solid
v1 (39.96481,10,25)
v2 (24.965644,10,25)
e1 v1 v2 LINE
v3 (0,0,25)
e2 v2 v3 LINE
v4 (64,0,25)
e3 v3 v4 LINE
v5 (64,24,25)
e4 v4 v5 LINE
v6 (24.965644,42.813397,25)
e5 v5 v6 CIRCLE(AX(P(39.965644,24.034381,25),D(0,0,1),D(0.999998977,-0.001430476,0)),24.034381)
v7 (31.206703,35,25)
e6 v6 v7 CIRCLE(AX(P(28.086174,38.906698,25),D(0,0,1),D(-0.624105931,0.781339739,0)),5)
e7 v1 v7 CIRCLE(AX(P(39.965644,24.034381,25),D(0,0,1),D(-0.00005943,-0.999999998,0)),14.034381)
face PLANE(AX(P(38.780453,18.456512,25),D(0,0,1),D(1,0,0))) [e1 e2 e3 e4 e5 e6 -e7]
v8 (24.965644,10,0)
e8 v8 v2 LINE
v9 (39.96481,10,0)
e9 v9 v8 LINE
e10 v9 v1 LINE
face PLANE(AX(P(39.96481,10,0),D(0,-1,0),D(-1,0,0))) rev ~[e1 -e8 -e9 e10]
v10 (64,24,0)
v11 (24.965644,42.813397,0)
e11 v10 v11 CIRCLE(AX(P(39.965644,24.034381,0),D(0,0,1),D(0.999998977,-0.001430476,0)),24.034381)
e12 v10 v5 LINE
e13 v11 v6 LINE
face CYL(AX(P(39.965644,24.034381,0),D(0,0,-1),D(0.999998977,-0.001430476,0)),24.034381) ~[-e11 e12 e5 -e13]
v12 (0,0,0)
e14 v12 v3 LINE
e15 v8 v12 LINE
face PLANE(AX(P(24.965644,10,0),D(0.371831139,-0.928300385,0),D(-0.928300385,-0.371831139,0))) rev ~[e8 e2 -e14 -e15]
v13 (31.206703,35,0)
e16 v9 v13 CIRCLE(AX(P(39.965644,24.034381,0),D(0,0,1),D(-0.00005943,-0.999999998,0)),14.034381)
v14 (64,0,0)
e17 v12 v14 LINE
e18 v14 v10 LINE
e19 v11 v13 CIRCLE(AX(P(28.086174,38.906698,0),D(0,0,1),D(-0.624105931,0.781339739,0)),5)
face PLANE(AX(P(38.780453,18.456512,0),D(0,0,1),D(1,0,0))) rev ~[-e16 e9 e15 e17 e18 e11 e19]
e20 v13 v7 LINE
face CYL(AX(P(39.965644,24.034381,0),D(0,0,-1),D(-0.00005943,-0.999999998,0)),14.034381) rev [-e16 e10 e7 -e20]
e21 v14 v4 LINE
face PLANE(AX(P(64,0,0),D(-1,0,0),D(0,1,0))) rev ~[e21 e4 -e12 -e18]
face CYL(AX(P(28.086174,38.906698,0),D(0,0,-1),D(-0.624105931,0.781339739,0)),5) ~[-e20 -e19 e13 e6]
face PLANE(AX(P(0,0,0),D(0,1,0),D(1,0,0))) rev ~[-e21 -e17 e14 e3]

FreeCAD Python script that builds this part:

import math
import FreeCAD as App
import Part
import Sketcher
from FreeCAD import Vector

doc = App.newDocument("Part")
body = doc.addObject("PartDesign::Body", "Body")

# Sketch on XY plane
sketch1 = doc.addObject("Sketcher::SketchObject", "Sketch")
body.addObject(sketch1)
sketch1.AttachmentSupport = (doc.XY_Plane, [""])
sketch1.MapMode = "FlatFace"
sketch1.addGeometry([
    Part.ArcOfCircle(Part.Circle(Vector(39.965644, 24.034381, 0), Vector(0, 0, 1), 24.034381), math.radians(-0.08196), math.radians(128.616596)),  # 0
    Part.ArcOfCircle(Part.Circle(Vector(28.086174, 38.906698, 0), Vector(0, 0, 1), 5), math.radians(128.616595), math.radians(308.616595)),  # 1
    Part.ArcOfCircle(Part.Circle(Vector(39.965644, 24.034381, 0), Vector(0, 0, 1), 14.034381), math.radians(-90.003405), math.radians(128.616599)),  # 2
    Part.LineSegment(Vector(39.96481, 10, 0), Vector(24.965644, 10, 0)),  # 3
    Part.LineSegment(Vector(24.965644, 10, 0), Vector(0, 0, 0)),  # 4
    Part.LineSegment(Vector(0, 0, 0), Vector(64, 0, 0)),  # 5
    Part.LineSegment(Vector(64, 0, 0), Vector(64, 24, 0)),  # 6
], False)
sketch1.addConstraint([
    Sketcher.Constraint("Tangent", 0, 2, 1, 1),
    Sketcher.Constraint("Tangent", 1, 2, 2, 2),
    Sketcher.Constraint("Coincident", 2, 1, 3, 1),
    Sketcher.Constraint("Coincident", 3, 2, 4, 1),
    Sketcher.Constraint("Coincident", 4, 2, 5, 1),
    Sketcher.Constraint("Coincident", 5, 2, 6, 1),
    Sketcher.Constraint("Coincident", 6, 2, 0, 1),
    Sketcher.Constraint("Horizontal", 3),
    Sketcher.Constraint("Horizontal", 5),
    Sketcher.Constraint("Vertical", 6),
    Sketcher.Constraint("Coincident", 4, 2, -1, 1),
    Sketcher.Constraint("Coincident", 2, 3, 0, 3),
    Sketcher.Constraint("Vertical", 0, 2, 3, 2),
    Sketcher.Constraint("Radius", 1, 5.0),
    Sketcher.Constraint("DistanceX", 5, 1, 5, 2, 64.0),
    Sketcher.Constraint("DistanceY", 6, 1, 6, 2, 24.0),
    Sketcher.Constraint("DistanceY", -1, 1, 1, 2, 35.0),
    Sketcher.Constraint("DistanceY", -1, 1, 2, 1, 10.0),
    Sketcher.Constraint("DistanceX", 0, 2, 2, 3, 15.0),
    Sketcher.Constraint("DistanceX", 3, 2, 3, 1, 14.999166),
])
pad1 = doc.addObject("PartDesign::Pad", "Pad")
body.addObject(pad1)
pad1.Profile = sketch1
pad1.Length = 25

doc.recompute()
